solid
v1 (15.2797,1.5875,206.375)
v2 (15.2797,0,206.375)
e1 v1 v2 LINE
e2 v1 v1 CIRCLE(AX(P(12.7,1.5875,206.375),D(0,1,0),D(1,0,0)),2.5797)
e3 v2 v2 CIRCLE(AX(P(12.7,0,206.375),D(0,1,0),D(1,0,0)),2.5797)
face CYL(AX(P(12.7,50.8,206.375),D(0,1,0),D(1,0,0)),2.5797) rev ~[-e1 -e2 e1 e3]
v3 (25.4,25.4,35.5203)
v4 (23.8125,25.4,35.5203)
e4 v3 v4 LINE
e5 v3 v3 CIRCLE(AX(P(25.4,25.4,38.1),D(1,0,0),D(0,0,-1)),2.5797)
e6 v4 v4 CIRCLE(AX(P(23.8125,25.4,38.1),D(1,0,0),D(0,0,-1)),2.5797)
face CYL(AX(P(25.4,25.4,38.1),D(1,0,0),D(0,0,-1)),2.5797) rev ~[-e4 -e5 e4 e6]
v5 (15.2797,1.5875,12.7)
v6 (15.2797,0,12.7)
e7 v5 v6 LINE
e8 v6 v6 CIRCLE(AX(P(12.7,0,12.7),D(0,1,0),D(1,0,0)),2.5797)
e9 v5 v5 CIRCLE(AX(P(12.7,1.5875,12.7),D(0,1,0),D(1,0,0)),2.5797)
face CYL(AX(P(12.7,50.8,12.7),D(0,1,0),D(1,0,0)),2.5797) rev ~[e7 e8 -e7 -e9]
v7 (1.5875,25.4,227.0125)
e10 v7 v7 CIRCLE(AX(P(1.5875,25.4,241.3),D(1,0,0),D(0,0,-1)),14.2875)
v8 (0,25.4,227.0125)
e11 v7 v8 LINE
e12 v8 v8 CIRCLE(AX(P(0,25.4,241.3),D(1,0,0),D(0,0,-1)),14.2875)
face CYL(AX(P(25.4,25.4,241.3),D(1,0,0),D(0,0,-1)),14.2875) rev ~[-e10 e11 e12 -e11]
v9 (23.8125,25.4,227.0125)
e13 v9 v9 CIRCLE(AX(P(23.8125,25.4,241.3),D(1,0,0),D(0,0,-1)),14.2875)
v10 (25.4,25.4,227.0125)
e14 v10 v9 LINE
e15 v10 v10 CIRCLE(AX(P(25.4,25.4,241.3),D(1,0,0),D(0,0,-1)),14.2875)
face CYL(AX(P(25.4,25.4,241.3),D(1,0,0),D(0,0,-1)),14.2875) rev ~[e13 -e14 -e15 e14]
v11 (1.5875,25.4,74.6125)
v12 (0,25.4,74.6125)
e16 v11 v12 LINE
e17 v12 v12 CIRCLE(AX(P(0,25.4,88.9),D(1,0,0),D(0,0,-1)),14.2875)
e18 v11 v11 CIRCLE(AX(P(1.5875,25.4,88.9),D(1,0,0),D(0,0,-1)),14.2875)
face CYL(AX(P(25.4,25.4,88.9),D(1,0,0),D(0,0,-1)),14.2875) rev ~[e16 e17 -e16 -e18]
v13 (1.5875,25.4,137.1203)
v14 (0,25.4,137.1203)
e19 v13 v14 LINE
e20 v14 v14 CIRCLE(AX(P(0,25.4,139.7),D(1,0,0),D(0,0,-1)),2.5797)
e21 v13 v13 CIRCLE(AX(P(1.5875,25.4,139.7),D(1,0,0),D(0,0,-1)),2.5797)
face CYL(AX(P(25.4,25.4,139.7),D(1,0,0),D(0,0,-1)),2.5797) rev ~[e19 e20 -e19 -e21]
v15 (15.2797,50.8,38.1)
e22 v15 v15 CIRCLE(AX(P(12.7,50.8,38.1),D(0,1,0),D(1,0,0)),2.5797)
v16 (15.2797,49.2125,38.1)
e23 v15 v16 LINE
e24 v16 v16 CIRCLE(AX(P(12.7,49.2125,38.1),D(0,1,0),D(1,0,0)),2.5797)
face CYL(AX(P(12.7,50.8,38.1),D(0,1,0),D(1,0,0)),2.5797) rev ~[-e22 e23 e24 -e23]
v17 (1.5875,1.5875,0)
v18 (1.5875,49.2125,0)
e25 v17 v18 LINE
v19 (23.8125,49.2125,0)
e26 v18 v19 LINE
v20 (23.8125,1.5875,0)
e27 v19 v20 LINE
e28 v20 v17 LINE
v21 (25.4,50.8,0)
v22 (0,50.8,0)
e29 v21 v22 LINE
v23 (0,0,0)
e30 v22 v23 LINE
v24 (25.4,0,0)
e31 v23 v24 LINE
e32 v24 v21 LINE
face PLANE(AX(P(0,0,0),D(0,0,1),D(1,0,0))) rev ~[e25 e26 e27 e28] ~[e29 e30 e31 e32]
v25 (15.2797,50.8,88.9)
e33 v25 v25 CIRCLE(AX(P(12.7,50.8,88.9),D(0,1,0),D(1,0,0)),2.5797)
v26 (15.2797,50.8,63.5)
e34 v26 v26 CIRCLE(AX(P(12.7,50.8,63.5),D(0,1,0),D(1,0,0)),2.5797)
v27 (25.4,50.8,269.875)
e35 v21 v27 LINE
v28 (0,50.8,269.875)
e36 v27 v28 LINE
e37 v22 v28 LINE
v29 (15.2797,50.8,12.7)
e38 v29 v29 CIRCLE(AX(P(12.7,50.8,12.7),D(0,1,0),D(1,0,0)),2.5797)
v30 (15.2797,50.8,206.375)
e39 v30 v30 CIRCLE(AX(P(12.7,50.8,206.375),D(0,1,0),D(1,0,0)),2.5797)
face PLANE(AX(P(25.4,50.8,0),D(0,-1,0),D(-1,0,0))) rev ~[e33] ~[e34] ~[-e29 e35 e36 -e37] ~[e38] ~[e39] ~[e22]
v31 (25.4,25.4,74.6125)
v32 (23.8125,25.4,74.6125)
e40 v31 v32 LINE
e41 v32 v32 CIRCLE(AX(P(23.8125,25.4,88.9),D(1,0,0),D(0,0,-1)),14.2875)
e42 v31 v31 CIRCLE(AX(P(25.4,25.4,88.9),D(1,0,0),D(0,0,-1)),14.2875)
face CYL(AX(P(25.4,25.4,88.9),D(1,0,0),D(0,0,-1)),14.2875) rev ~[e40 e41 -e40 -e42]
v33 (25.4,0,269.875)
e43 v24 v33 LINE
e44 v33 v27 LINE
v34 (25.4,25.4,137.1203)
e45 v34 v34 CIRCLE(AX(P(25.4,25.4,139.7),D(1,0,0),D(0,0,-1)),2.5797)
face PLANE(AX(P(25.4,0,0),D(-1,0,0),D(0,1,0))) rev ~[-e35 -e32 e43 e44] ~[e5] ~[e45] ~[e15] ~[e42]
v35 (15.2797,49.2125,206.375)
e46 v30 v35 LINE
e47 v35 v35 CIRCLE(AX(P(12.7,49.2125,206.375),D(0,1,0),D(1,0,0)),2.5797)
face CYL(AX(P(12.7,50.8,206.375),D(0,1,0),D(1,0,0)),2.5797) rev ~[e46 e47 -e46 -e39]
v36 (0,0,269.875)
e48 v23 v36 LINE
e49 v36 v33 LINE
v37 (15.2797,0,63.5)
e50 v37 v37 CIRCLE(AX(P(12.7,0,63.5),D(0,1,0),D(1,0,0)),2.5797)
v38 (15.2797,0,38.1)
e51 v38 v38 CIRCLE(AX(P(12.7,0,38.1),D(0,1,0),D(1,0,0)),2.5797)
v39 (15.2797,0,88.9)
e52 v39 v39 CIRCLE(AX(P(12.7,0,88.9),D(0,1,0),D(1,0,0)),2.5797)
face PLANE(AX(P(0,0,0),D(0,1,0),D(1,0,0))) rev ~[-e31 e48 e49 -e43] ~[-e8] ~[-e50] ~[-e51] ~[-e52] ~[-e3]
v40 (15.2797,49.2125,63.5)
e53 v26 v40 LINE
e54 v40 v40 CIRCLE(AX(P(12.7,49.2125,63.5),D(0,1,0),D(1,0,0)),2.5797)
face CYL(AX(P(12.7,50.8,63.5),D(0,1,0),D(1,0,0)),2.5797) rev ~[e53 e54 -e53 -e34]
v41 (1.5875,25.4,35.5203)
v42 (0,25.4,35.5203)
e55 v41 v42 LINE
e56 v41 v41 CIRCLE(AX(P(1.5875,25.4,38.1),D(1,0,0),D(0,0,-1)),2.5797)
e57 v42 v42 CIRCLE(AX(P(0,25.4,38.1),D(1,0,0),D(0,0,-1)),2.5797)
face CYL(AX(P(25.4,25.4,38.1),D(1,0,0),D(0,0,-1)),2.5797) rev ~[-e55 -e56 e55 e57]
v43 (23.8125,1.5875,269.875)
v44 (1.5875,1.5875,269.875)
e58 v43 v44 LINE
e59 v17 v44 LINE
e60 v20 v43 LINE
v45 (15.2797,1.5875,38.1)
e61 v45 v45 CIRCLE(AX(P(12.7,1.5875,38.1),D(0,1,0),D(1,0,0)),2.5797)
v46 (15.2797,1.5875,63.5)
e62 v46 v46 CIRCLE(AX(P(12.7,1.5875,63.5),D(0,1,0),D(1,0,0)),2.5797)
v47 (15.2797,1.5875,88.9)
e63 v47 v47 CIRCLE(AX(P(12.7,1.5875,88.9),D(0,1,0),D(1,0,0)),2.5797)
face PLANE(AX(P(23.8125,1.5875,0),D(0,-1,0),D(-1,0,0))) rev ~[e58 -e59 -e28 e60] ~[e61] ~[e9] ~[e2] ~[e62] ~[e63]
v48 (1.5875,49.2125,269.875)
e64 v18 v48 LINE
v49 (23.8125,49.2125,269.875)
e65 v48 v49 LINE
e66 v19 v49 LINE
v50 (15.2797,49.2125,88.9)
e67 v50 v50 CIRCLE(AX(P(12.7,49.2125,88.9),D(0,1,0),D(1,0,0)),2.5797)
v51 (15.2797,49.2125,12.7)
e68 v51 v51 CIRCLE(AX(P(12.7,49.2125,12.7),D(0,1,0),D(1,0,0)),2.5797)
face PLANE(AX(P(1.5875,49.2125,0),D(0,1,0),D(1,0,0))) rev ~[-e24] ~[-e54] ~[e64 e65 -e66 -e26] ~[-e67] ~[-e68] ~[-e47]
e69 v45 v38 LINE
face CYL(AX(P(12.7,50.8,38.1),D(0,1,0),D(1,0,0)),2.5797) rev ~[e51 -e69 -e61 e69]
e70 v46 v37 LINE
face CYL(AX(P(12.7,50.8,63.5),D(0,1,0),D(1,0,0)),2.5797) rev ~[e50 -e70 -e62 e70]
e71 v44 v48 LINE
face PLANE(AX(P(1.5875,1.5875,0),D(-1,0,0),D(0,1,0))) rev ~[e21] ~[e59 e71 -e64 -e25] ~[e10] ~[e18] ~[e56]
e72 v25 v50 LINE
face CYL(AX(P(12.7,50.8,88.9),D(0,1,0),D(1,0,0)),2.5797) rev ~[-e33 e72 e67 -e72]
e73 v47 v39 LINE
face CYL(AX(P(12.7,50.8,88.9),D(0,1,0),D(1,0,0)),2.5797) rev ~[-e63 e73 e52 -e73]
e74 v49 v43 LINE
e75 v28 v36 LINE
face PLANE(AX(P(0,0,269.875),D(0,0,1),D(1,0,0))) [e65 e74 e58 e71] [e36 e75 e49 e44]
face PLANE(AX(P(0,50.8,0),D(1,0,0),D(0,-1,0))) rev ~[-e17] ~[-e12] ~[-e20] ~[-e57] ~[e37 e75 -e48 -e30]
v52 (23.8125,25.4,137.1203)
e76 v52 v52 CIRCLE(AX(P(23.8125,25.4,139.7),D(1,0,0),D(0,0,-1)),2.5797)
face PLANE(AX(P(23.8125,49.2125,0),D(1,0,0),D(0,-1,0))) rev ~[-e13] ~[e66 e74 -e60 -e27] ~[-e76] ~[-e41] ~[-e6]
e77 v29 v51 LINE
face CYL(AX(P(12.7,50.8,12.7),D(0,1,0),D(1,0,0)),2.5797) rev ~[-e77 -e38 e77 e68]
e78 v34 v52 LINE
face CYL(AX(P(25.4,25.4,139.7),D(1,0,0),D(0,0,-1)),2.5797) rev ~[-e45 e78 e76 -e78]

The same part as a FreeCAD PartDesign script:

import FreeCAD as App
import Part
import Sketcher

V = App.Vector
Q = App.Units.Quantity

doc = App.newDocument("Part")
params = doc.addObject("Spreadsheet::Sheet", "Params")
for row, (alias, value) in enumerate([
    ("sketch1_width", "1 in"),
    ("sketch1_height", "2 in"),
    ("pad1_length", "10.625 in"),
    ("sketch2_diameter", "0.203126 in"),
    ("pocket1_length", "2.6875 in"),
    ("sketch3_diameter", "1.125 in"),
    ("pocket2_length", "1 in"),
    ("sketch4_diameter", "0.203126 in"),
    ("sketch4_diameter2", "1.125 in"),
    ("pocket3_length", "1 in"),
    ("sketch5_diameter", "0.203126 in"),
    ("pocket4_length", "2.625 in"),
    ("sketch6_diameter", "0.203126 in"),
    ("pocket5_length", "2.625 in"),
], start=1):
    params.set(f"A{row}", alias)
    params.set(f"B{row}", "=" + value)
    params.setAlias(f"B{row}", alias)

body = doc.addObject("PartDesign::Body", "Body")

sketch1 = doc.addObject("Sketcher::SketchObject", "Sketch")
body.addObject(sketch1)
sketch1.AttachmentSupport = (doc.XY_Plane, [""])
sketch1.MapMode = "FlatFace"
sketch1.addGeometry(Part.LineSegment(V(0, 50.8, 0), V(0, 0, 0)), False)
sketch1.addGeometry(Part.LineSegment(V(0, 0, 0), V(25.4, 0, 0)), False)
sketch1.addGeometry(Part.LineSegment(V(25.4, 0, 0), V(25.4, 50.8, 0)), False)
sketch1.addGeometry(Part.LineSegment(V(25.4, 50.8, 0), V(0, 50.8, 0)), False)
sketch1.addGeometry(Part.LineSegment(V(1.5875, 1.5875, 0), V(1.5875, 49.2125, 0)), False)
sketch1.addGeometry(Part.LineSegment(V(1.5875, 49.2125, 0), V(23.8125, 49.2125, 0)), False)
sketch1.addGeometry(Part.LineSegment(V(23.8125, 49.2125, 0), V(23.8125, 1.5875, 0)), False)
sketch1.addGeometry(Part.LineSegment(V(23.8125, 1.5875, 0), V(1.5875, 1.5875, 0)), False)
sketch1.addConstraint(Sketcher.Constraint("Coincident", 0, 2, 1, 1))
sketch1.addConstraint(Sketcher.Constraint("Coincident", 1, 2, 2, 1))
sketch1.addConstraint(Sketcher.Constraint("Coincident", 2, 2, 3, 1))
sketch1.addConstraint(Sketcher.Constraint("Coincident", 3, 2, 0, 1))
sketch1.addConstraint(Sketcher.Constraint("Coincident", 4, 2, 5, 1))
sketch1.addConstraint(Sketcher.Constraint("Coincident", 5, 2, 6, 1))
sketch1.addConstraint(Sketcher.Constraint("Coincident", 6, 2, 7, 1))
sketch1.addConstraint(Sketcher.Constraint("Coincident", 7, 2, 4, 1))
sketch1.addConstraint(Sketcher.Constraint("Vertical", 0))
sketch1.addConstraint(Sketcher.Constraint("Horizontal", 1))
sketch1.addConstraint(Sketcher.Constraint("Vertical", 2))
sketch1.addConstraint(Sketcher.Constraint("Horizontal", 3))
sketch1.addConstraint(Sketcher.Constraint("Vertical", 4))
sketch1.addConstraint(Sketcher.Constraint("Horizontal", 5))
sketch1.addConstraint(Sketcher.Constraint("Vertical", 6))
sketch1.addConstraint(Sketcher.Constraint("Horizontal", 7))
sketch1.addConstraint(Sketcher.Constraint("Coincident", 0, 2, -1, 1))
sketch1.addConstraint(Sketcher.Constraint("DistanceX", 1, 1, 1, 2, Q("1 in")))
sketch1.addConstraint(Sketcher.Constraint("DistanceY", 0, 2, 0, 1, Q("2 in")))
sketch1.addConstraint(Sketcher.Constraint("DistanceX", -1, 1, 4, 2, Q("0.0625 in")))
sketch1.addConstraint(Sketcher.Constraint("DistanceY", -1, 1, 6, 2, Q("0.0625 in")))
sketch1.addConstraint(Sketcher.Constraint("DistanceY", 4, 2, 3, 2, Q("0.0625 in")))
sketch1.addConstraint(Sketcher.Constraint("DistanceX", 5, 2, 2, 2, Q("0.0625 in")))
sketch1.setExpression("Constraints[17]", "Params.sketch1_width")
sketch1.setExpression("Constraints[18]", "Params.sketch1_height")
pad1 = doc.addObject("PartDesign::Pad", "Pad")
body.addObject(pad1)
pad1.Profile = sketch1
pad1.setExpression("Length", "Params.pad1_length")

sketch2 = doc.addObject("Sketcher::SketchObject", "Sketch001")
body.addObject(sketch2)
sketch2.AttachmentSupport = (doc.XZ_Plane, [""])
sketch2.MapMode = "FlatFace"
sketch2.AttachmentOffset = App.Placement(V(0, 0, -2 * 25.4), App.Rotation())
sketch2.addGeometry(Part.Circle(V(12.7, 12.7, 0), V(0, 0, 1), 2.5797), False)
sketch2.addGeometry(Part.Circle(V(12.7, 38.1, 0), V(0, 0, 1), 2.5797), False)
sketch2.addGeometry(Part.Circle(V(12.7, 63.5, 0), V(0, 0, 1), 2.5797), False)
sketch2.addConstraint(Sketcher.Constraint("Equal", 0, 1))
sketch2.addConstraint(Sketcher.Constraint("Equal", 1, 2))
sketch2.addConstraint(Sketcher.Constraint("Vertical", 0, 3, 1, 3))
sketch2.addConstraint(Sketcher.Constraint("Vertical", 1, 3, 2, 3))
sketch2.addConstraint(Sketcher.Constraint("Diameter", 0, Q("0.203126 in")))
sketch2.addConstraint(Sketcher.Constraint("DistanceY", 0, 3, 1, 3, Q("1 in")))
sketch2.addConstraint(Sketcher.Constraint("DistanceY", 1, 3, 2, 3, Q("1 in")))
sketch2.addConstraint(Sketcher.Constraint("DistanceX", -1, 1, 0, 3, Q("0.5 in")))
sketch2.addConstraint(Sketcher.Constraint("DistanceY", -1, 1, 0, 3, Q("0.5 in")))
sketch2.setExpression("Constraints[4]", "Params.sketch2_diameter")
pocket1 = doc.addObject("PartDesign::Pocket", "Pocket")
body.addObject(pocket1)
pocket1.Profile = sketch2
pocket1.setExpression("Length", "Params.pocket1_length")
pocket1.Reversed = True

sketch3 = doc.addObject("Sketcher::SketchObject", "Sketch002")
body.addObject(sketch3)
sketch3.AttachmentSupport = (doc.YZ_Plane, [""])
sketch3.MapMode = "FlatFace"
sketch3.AttachmentOffset = App.Placement(V(0, 0, 1 * 25.4), App.Rotation())
sketch3.addGeometry(Part.Circle(V(25.4, 241.3, 0), V(0, 0, 1), 14.2875), False)
sketch3.addConstraint(Sketcher.Constraint("Diameter", 0, Q("1.125 in")))
sketch3.addConstraint(Sketcher.Constraint("DistanceX", -1, 1, 0, 3, Q("1 in")))
sketch3.addConstraint(Sketcher.Constraint("DistanceY", -1, 1, 0, 3, Q("9.5 in")))
sketch3.setExpression("Constraints[0]", "Params.sketch3_diameter")
pocket2 = doc.addObject("PartDesign::Pocket", "Pocket001")
body.addObject(pocket2)
pocket2.Profile = sketch3
pocket2.setExpression("Length", "Params.pocket2_length")

sketch4 = doc.addObject("Sketcher::SketchObject", "Sketch003")
body.addObject(sketch4)
sketch4.AttachmentSupport = (doc.YZ_Plane, [""])
sketch4.MapMode = "FlatFace"
sketch4.AttachmentOffset = App.Placement(V(0, 0, 1 * 25.4), App.Rotation())
sketch4.addGeometry(Part.Circle(V(25.4, 139.7, 0), V(0, 0, 1), 2.5797), False)
sketch4.addGeometry(Part.Circle(V(25.4, 38.1, 0), V(0, 0, 1), 2.5797), False)
sketch4.addGeometry(Part.Circle(V(25.4, 88.9, 0), V(0, 0, 1), 14.2875), False)
sketch4.addConstraint(Sketcher.Constraint("Equal", 0, 1))
sketch4.addConstraint(Sketcher.Constraint("Vertical", 0, 3, 1, 3))
sketch4.addConstraint(Sketcher.Constraint("Vertical", 1, 3, 2, 3))
sketch4.addConstraint(Sketcher.Constraint("Diameter", 0, Q("0.203126 in")))
sketch4.addConstraint(Sketcher.Constraint("Diameter", 2, Q("1.125 in")))
sketch4.addConstraint(Sketcher.Constraint("DistanceY", 1, 3, 0, 3, Q("4 in")))
sketch4.addConstraint(Sketcher.Constraint("DistanceY", -1, 1, 1, 3, Q("1.5 in")))
sketch4.addConstraint(Sketcher.Constraint("DistanceX", -1, 1, 0, 3, Q("1 in")))
sketch4.addConstraint(Sketcher.Constraint("DistanceY", 2, 3, 0, 3, Q("2 in")))
sketch4.setExpression("Constraints[3]", "Params.sketch4_diameter")
sketch4.setExpression("Constraints[4]", "Params.sketch4_diameter2")
pocket3 = doc.addObject("PartDesign::Pocket", "Pocket002")
body.addObject(pocket3)
pocket3.Profile = sketch4
pocket3.setExpression("Length", "Params.pocket3_length")

sketch5 = doc.addObject("Sketcher::SketchObject", "Sketch004")
body.addObject(sketch5)
sketch5.AttachmentSupport = (doc.XZ_Plane, [""])
sketch5.MapMode = "FlatFace"
sketch5.AttachmentOffset = App.Placement(V(0, 0, -2 * 25.4), App.Rotation())
sketch5.addGeometry(Part.Circle(V(12.7, 88.9, 0), V(0, 0, 1), 2.5797), False)
sketch5.addConstraint(Sketcher.Constraint("Diameter", 0, Q("0.203126 in")))
sketch5.addConstraint(Sketcher.Constraint("DistanceX", -1, 1, 0, 3, Q("0.5 in")))
sketch5.addConstraint(Sketcher.Constraint("DistanceY", -1, 1, 0, 3, Q("3.5 in")))
sketch5.setExpression("Constraints[0]", "Params.sketch5_diameter")
pocket4 = doc.addObject("PartDesign::Pocket", "Pocket003")
body.addObject(pocket4)
pocket4.Profile = sketch5
pocket4.setExpression("Length", "Params.pocket4_length")
pocket4.Reversed = True

sketch6 = doc.addObject("Sketcher::SketchObject", "Sketch005")
body.addObject(sketch6)
sketch6.AttachmentSupport = (doc.XZ_Plane, [""])
sketch6.MapMode = "FlatFace"
sketch6.AttachmentOffset = App.Placement(V(0, 0, -2 * 25.4), App.Rotation())
sketch6.addGeometry(Part.Circle(V(12.7, 206.375, 0), V(0, 0, 1), 2.5797), False)
sketch6.addConstraint(Sketcher.Constraint("Diameter", 0, Q("0.203126 in")))
sketch6.addConstraint(Sketcher.Constraint("DistanceX", -1, 1, 0, 3, Q("0.5 in")))
sketch6.addConstraint(Sketcher.Constraint("DistanceY", -1, 1, 0, 3, Q("8.125 in")))
sketch6.setExpression("Constraints[0]", "Params.sketch6_diameter")
pocket5 = doc.addObject("PartDesign::Pocket", "Pocket004")
body.addObject(pocket5)
pocket5.Profile = sketch6
pocket5.setExpression("Length", "Params.pocket5_length")
pocket5.Reversed = True

doc.recompute()
